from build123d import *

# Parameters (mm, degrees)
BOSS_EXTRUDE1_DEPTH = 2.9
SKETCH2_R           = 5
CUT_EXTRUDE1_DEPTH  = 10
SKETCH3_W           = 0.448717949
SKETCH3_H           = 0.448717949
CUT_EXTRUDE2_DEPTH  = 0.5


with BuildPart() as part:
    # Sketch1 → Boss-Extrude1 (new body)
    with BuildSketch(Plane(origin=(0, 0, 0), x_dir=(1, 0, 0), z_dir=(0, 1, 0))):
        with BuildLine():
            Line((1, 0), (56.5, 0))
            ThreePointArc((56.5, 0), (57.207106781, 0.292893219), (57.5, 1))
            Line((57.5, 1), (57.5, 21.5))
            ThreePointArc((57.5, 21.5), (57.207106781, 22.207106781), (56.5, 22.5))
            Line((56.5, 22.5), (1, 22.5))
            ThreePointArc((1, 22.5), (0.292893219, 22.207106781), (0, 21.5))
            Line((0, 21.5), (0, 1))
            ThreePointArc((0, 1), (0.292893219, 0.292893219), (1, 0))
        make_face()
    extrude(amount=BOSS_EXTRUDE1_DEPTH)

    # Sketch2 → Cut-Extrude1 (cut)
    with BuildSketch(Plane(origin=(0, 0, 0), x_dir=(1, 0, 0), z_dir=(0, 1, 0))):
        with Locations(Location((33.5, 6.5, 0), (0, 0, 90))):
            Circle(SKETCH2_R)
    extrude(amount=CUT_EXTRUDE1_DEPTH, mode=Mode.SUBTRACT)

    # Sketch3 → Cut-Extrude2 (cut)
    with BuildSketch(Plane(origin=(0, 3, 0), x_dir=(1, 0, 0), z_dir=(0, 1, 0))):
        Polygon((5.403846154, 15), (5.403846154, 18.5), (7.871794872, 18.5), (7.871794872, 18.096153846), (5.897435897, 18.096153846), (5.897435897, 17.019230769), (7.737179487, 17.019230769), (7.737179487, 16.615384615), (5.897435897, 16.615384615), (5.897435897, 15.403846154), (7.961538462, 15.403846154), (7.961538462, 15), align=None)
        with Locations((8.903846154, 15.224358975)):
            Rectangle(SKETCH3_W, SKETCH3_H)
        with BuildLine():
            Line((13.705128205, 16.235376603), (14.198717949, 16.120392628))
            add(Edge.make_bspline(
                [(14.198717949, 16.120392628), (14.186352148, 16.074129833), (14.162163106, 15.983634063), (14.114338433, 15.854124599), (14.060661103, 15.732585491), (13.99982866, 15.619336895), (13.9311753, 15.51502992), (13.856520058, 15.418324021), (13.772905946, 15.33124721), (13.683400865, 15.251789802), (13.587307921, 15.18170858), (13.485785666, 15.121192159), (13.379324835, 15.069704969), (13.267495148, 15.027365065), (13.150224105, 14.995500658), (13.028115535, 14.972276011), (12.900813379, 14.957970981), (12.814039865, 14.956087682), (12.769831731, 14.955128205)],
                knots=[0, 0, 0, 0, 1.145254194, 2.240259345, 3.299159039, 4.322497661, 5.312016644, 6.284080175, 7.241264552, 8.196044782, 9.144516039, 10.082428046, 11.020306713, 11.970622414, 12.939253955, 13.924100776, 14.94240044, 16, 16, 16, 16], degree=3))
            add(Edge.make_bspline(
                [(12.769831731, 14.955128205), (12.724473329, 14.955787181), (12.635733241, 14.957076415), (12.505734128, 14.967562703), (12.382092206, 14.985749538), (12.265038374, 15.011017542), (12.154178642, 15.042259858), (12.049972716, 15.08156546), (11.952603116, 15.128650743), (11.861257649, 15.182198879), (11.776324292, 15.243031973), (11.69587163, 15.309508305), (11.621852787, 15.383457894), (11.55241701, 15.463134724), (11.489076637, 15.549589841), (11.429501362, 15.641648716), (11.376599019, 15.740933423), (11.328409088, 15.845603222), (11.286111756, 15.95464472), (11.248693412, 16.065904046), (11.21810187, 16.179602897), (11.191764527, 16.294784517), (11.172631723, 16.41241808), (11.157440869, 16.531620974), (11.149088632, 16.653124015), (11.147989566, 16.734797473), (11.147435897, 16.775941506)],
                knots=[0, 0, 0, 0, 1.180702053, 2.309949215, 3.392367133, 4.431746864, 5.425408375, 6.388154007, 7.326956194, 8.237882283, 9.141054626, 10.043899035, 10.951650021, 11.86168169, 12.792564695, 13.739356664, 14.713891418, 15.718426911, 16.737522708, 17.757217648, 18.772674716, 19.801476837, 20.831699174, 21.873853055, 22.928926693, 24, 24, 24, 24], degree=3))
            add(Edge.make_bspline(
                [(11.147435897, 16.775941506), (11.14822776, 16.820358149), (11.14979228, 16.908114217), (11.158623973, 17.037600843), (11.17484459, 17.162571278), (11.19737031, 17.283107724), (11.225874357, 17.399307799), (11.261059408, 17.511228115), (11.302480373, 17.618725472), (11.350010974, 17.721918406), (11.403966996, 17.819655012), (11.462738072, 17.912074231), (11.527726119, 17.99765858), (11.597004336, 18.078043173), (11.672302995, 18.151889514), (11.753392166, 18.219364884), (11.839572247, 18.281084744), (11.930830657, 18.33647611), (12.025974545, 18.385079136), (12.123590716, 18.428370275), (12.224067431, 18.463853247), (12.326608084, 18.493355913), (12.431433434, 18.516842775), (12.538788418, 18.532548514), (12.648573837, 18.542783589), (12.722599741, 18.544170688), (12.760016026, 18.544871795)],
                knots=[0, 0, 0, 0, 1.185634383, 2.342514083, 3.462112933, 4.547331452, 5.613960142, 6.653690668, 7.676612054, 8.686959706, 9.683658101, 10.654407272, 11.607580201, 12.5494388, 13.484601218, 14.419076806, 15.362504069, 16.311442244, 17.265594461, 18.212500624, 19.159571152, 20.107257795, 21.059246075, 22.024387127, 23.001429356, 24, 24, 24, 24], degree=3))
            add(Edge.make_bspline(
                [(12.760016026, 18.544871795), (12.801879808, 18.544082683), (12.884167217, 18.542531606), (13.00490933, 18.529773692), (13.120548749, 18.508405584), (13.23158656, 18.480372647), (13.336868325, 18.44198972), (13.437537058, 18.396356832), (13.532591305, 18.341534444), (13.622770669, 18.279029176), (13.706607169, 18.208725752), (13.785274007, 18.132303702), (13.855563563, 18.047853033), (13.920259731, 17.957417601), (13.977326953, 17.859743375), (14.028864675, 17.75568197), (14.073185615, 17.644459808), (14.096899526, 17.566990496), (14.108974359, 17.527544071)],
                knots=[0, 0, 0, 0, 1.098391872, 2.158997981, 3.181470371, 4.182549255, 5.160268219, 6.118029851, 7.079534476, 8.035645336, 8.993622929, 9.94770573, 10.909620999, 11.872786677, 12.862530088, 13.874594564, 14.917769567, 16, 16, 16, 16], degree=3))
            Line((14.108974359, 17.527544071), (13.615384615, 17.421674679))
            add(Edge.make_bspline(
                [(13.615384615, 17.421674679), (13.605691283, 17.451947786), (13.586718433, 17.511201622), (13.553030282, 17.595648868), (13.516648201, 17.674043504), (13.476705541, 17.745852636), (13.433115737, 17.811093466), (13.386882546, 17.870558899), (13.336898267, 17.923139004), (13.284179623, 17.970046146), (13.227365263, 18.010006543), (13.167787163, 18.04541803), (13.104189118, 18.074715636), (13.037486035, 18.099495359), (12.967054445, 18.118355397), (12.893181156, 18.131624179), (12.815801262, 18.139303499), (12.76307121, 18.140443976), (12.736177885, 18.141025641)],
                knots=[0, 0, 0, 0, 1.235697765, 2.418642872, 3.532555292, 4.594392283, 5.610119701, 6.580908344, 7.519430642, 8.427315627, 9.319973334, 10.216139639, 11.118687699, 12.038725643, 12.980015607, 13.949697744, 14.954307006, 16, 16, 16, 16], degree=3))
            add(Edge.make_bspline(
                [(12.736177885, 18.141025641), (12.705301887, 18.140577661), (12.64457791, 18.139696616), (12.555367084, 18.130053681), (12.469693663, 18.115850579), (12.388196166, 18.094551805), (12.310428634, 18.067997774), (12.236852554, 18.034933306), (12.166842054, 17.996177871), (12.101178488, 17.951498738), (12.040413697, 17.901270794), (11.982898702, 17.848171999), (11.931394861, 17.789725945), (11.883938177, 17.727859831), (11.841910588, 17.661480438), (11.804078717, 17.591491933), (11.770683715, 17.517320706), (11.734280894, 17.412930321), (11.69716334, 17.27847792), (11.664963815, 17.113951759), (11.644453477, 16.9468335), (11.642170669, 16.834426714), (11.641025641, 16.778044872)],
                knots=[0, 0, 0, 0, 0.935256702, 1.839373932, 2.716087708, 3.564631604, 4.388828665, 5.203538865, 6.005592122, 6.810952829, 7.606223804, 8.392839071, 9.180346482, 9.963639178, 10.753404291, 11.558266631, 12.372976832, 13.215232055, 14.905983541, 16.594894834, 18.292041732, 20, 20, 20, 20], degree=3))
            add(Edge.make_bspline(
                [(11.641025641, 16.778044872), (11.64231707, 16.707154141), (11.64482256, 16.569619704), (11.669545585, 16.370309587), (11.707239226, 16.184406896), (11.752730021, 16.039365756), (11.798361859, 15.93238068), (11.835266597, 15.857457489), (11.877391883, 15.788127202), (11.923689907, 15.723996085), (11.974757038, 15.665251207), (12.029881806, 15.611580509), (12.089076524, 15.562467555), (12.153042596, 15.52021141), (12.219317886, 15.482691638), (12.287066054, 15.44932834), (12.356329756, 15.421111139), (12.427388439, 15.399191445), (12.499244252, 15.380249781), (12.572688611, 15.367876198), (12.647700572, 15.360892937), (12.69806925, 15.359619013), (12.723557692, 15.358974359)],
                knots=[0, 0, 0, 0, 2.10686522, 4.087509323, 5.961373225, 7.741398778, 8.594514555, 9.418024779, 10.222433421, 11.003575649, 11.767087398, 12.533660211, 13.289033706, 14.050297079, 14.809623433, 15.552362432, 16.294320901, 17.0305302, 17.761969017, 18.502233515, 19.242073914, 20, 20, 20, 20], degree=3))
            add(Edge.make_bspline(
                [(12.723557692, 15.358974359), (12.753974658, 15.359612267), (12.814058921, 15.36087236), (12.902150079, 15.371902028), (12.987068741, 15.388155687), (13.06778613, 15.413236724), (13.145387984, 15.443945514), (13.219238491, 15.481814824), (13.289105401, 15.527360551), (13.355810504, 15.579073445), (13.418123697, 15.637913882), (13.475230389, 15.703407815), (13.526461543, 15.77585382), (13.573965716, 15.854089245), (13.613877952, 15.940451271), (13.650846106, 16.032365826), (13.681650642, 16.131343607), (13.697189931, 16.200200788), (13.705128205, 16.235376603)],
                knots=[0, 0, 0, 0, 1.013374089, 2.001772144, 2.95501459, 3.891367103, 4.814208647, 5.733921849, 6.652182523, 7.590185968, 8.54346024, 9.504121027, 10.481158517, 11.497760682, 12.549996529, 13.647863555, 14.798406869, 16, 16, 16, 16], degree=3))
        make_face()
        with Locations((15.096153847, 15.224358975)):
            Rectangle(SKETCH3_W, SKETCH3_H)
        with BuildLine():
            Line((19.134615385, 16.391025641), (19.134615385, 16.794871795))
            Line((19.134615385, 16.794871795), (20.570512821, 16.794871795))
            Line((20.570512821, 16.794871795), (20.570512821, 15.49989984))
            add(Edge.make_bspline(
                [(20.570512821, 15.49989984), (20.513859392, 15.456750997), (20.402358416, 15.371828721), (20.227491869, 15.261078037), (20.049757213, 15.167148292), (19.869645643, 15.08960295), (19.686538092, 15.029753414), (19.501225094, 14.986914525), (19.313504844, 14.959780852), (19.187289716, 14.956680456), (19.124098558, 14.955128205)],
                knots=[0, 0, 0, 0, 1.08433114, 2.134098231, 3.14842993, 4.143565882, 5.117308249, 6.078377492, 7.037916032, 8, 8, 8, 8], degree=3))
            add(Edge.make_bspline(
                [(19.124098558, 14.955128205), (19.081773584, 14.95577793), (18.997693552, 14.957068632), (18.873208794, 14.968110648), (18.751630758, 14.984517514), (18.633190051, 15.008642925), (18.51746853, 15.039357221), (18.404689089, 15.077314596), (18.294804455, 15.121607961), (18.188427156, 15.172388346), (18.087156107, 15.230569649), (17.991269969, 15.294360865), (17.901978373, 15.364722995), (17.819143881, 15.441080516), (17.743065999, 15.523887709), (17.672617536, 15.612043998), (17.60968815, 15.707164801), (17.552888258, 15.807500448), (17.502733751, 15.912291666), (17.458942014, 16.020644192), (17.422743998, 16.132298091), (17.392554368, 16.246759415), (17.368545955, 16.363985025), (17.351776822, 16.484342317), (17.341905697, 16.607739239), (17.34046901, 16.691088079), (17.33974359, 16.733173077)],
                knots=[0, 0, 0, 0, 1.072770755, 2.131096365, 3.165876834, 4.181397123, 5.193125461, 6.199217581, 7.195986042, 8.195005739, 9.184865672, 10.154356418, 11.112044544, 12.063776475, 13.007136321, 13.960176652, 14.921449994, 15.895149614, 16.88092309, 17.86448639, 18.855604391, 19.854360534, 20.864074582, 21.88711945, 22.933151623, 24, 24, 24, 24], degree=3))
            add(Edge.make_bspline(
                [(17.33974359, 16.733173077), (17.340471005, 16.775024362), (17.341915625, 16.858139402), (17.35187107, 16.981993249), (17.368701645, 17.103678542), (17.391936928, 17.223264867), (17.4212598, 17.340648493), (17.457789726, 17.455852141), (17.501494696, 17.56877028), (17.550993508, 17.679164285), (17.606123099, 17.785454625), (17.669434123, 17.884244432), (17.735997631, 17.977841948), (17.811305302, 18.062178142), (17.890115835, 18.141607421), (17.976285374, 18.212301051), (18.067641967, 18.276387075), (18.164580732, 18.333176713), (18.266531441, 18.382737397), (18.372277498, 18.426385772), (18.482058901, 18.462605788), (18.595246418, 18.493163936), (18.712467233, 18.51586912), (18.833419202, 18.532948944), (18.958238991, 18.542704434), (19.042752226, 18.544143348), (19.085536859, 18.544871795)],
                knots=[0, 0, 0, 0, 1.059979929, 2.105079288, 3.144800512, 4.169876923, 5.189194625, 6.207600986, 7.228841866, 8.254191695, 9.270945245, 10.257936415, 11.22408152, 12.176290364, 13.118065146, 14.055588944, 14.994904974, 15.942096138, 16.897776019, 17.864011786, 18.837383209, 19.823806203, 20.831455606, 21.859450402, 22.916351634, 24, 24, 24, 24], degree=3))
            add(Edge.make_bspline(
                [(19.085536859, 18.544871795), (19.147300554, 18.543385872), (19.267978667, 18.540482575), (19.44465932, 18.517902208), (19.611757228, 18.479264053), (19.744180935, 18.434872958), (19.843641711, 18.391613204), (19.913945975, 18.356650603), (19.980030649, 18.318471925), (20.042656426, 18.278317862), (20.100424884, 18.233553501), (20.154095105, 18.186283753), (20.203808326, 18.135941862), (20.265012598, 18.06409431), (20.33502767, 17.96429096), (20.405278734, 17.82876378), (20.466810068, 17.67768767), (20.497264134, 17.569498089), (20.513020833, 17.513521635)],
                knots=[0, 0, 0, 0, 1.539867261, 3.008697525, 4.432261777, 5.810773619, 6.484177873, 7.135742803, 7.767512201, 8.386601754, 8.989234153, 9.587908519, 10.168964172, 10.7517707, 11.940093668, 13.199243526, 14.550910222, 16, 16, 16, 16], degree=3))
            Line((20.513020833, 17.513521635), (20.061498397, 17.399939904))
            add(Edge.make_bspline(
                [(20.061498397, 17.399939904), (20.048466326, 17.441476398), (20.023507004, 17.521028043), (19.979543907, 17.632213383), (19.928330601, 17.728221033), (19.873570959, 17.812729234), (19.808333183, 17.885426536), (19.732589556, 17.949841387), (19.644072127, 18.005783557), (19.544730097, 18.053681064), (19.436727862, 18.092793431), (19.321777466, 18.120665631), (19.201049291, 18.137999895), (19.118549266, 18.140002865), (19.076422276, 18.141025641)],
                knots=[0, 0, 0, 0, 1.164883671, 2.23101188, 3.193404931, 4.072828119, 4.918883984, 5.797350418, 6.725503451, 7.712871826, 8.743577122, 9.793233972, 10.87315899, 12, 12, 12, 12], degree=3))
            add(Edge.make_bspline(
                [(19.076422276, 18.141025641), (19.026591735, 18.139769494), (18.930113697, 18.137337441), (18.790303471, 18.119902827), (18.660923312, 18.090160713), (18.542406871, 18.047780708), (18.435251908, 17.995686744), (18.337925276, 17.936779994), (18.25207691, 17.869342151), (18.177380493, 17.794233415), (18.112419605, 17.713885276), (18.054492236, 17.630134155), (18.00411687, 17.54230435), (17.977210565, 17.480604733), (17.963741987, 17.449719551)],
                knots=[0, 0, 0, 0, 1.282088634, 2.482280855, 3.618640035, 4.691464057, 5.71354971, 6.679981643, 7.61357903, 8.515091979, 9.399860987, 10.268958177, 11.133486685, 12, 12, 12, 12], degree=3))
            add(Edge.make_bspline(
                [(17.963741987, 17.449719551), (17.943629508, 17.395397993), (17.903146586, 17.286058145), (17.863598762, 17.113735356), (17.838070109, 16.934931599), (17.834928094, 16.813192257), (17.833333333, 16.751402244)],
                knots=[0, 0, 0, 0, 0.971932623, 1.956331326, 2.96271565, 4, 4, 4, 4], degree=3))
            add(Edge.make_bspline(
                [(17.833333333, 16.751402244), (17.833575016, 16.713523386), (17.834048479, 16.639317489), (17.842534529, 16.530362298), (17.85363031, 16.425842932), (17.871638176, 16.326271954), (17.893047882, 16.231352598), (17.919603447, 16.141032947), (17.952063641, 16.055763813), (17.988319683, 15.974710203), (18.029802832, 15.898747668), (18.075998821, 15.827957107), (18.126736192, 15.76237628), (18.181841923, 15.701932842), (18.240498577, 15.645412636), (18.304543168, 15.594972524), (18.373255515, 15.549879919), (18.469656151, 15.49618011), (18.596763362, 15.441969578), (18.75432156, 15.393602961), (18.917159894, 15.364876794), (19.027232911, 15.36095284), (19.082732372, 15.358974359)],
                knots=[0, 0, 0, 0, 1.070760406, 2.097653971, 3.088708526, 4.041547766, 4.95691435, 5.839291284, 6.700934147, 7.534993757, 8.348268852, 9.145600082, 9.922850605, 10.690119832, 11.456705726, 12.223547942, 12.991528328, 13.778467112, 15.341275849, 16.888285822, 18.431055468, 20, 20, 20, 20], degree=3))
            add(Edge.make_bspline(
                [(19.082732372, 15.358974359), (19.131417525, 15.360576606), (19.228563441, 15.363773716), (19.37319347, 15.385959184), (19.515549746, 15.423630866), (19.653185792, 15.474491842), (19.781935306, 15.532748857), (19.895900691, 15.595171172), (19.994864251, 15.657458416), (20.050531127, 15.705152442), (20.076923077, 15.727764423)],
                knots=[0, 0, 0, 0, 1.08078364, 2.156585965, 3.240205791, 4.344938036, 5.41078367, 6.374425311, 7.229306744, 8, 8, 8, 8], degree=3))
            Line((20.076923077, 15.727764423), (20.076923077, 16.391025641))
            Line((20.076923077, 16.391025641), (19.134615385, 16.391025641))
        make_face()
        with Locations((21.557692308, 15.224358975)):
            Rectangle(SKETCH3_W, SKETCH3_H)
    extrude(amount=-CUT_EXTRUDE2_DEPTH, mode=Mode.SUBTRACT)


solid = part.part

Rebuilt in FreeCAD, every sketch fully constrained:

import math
import FreeCAD as App
import Part
import Sketcher


def add_polygon(sketch, points):
    """Adds a closed chain of lines whose ends are joined by coincident constraints."""
    first, n = sketch.GeometryCount, len(points)
    for a, b in zip(points, points[1:] + points[:1]):
        sketch.addGeometry(Part.LineSegment(App.Vector(*a, 0), App.Vector(*b, 0)), False)
    for i in range(n):
        sketch.addConstraint(Sketcher.Constraint("Coincident", first + i, 2, first + (i + 1) % n, 1))

doc = App.newDocument("Part")
body = doc.addObject("PartDesign::Body", "Body")

# Sketch on XZ plane
sketch1 = doc.addObject("Sketcher::SketchObject", "Sketch")
body.addObject(sketch1)
sketch1.AttachmentSupport = (doc.XZ_Plane, [""])
sketch1.MapMode = "FlatFace"
sketch1.addGeometry([
    Part.LineSegment(App.Vector(1, 0, 0), App.Vector(56.5, 0, 0)),  # 0
    Part.ArcOfCircle(Part.Circle(App.Vector(56.5, -1, 0), App.Vector(0, 0, 1), 1), math.radians(0), math.radians(90)),  # 1
    Part.LineSegment(App.Vector(57.5, -1, 0), App.Vector(57.5, -21.5, 0)),  # 2
    Part.ArcOfCircle(Part.Circle(App.Vector(56.5, -21.5, 0), App.Vector(0, 0, 1), 1), math.radians(-90), math.radians(0)),  # 3
    Part.LineSegment(App.Vector(56.5, -22.5, 0), App.Vector(1, -22.5, 0)),  # 4
    Part.ArcOfCircle(Part.Circle(App.Vector(1, -21.5, 0), App.Vector(0, 0, 1), 1), math.radians(-180), math.radians(-90)),  # 5
    Part.LineSegment(App.Vector(0, -21.5, 0), App.Vector(0, -1, 0)),  # 6
    Part.ArcOfCircle(Part.Circle(App.Vector(1, -1, 0), App.Vector(0, 0, 1), 1), math.radians(90), math.radians(180)),  # 7
], False)
sketch1.addConstraint([
    Sketcher.Constraint("Tangent", 0, 2, 1, 2),
    Sketcher.Constraint("Tangent", 1, 1, 2, 1),
    Sketcher.Constraint("Tangent", 2, 2, 3, 2),
    Sketcher.Constraint("Tangent", 3, 1, 4, 1),
    Sketcher.Constraint("Tangent", 4, 2, 5, 2),
    Sketcher.Constraint("Tangent", 5, 1, 6, 1),
    Sketcher.Constraint("Tangent", 6, 2, 7, 2),
    Sketcher.Constraint("Tangent", 7, 1, 0, 1),
    Sketcher.Constraint("Horizontal", 0),
    Sketcher.Constraint("Vertical", 2),
    Sketcher.Constraint("Horizontal", 4),
    Sketcher.Constraint("Vertical", 6),
    Sketcher.Constraint("Equal", 1, 3),
    Sketcher.Constraint("Equal", 3, 5),
    Sketcher.Constraint("Equal", 5, 7),
    Sketcher.Constraint("PointOnObject", 0, 2, -1),
    Sketcher.Constraint("PointOnObject", 5, 1, -2),
    Sketcher.Constraint("Radius", 1, 1.0),
    Sketcher.Constraint("DistanceX", 0, 1, 0, 2, 55.5),
    Sketcher.Constraint("DistanceY", 2, 2, 2, 1, 20.5),
])
pad1 = doc.addObject("PartDesign::Pad", "Pad")
body.addObject(pad1)
pad1.Profile = sketch1
pad1.Length = 2.9
pad1.Reversed = True

# Sketch on XZ plane
sketch2 = doc.addObject("Sketcher::SketchObject", "Sketch001")
body.addObject(sketch2)
sketch2.AttachmentSupport = (doc.XZ_Plane, [""])
sketch2.MapMode = "FlatFace"
sketch2.addGeometry(Part.Circle(App.Vector(33.5, -6.5, 0), App.Vector(0, 0, 1), 5), False)
sketch2.addConstraint([
    Sketcher.Constraint("Diameter", 0, 10.0),
    Sketcher.Constraint("DistanceX", -1, 1, 0, 3, 33.5),
    Sketcher.Constraint("DistanceY", 0, 3, -1, 1, 6.5),
])
pocket1 = doc.addObject("PartDesign::Pocket", "Pocket")
body.addObject(pocket1)
pocket1.Profile = sketch2
pocket1.Length = 10

# Sketch on XZ plane
sketch3 = doc.addObject("Sketcher::SketchObject", "Sketch002")
body.addObject(sketch3)
sketch3.AttachmentSupport = (doc.XZ_Plane, [""])
sketch3.MapMode = "FlatFace"
sketch3.AttachmentOffset = App.Placement(App.Vector(0, 0, -3), App.Rotation())
add_polygon(sketch3, [(5.403846, -18.5), (5.403846, -15), (7.961538, -15), (7.961538, -15.403846), (5.897436, -15.403846), (5.897436, -16.615385), (7.737179, -16.615385), (7.737179, -17.019231), (5.897436, -17.019231), (5.897436, -18.096154), (7.871795, -18.096154), (7.871795, -18.5)])  # lines 0-11
add_polygon(sketch3, [(8.679487, -15.448718), (8.679487, -15), (9.128205, -15), (9.128205, -15.448718)])  # lines 12-15
sketch3.addGeometry(Part.LineSegment(App.Vector(14.198718, -16.120393, 0), App.Vector(13.705128, -16.235377, 0)), False)  # 16
sketch3.addGeometry(Part.BSplineCurve([App.Vector(12.723558, -15.358974, 0), App.Vector(12.753975, -15.359612, 0), App.Vector(12.814059, -15.360872, 0), App.Vector(12.90215, -15.371902, 0), App.Vector(12.987069, -15.388156, 0), App.Vector(13.067786, -15.413237, 0), App.Vector(13.145388, -15.443946, 0), App.Vector(13.219238, -15.481815, 0), App.Vector(13.289105, -15.527361, 0), App.Vector(13.355811, -15.579073, 0), App.Vector(13.418124, -15.637914, 0), App.Vector(13.47523, -15.703408, 0), App.Vector(13.526462, -15.775854, 0), App.Vector(13.573966, -15.854089, 0), App.Vector(13.613878, -15.940451, 0), App.Vector(13.650846, -16.032366, 0), App.Vector(13.681651, -16.131344, 0), App.Vector(13.69719, -16.200201, 0), App.Vector(13.705128, -16.235377, 0)], [4, 1, 1, 1, 1, 1, 1, 1, 1, 1, 1, 1, 1, 1, 1, 1, 4], [0, 1.013374089, 2.001772144, 2.95501459, 3.891367103, 4.814208647, 5.733921849, 6.652182523, 7.590185968, 8.54346024, 9.504121027, 10.481158517, 11.497760682, 12.549996529, 13.647863555, 14.798406869, 16], False, 3, [1, 1, 1, 1, 1, 1, 1, 1, 1, 1, 1, 1, 1, 1, 1, 1, 1, 1, 1], False), False)  # 17
sketch3.addGeometry(Part.BSplineCurve([App.Vector(11.641026, -16.778045, 0), App.Vector(11.642317, -16.707154, 0), App.Vector(11.644823, -16.56962, 0), App.Vector(11.669546, -16.37031, 0), App.Vector(11.707239, -16.184407, 0), App.Vector(11.75273, -16.039366, 0), App.Vector(11.798362, -15.932381, 0), App.Vector(11.835267, -15.857457, 0), App.Vector(11.877392, -15.788127, 0), App.Vector(11.92369, -15.723996, 0), App.Vector(11.974757, -15.665251, 0), App.Vector(12.029882, -15.611581, 0), App.Vector(12.089077, -15.562468, 0), App.Vector(12.153043, -15.520211, 0), App.Vector(12.219318, -15.482692, 0), App.Vector(12.287066, -15.449328, 0), App.Vector(12.35633, -15.421111, 0), App.Vector(12.427388, -15.399191, 0), App.Vector(12.499244, -15.38025, 0), App.Vector(12.572689, -15.367876, 0), App.Vector(12.647701, -15.360893, 0), App.Vector(12.698069, -15.359619, 0), App.Vector(12.723558, -15.358974, 0)], [4, 1, 1, 1, 1, 1, 1, 1, 1, 1, 1, 1, 1, 1, 1, 1, 1, 1, 1, 1, 4], [0, 2.10686522, 4.087509323, 5.961373225, 7.741398778, 8.594514555, 9.418024779, 10.222433421, 11.003575649, 11.767087398, 12.533660211, 13.289033706, 14.050297079, 14.809623433, 15.552362432, 16.294320901, 17.0305302, 17.761969017, 18.502233515, 19.242073914, 20], False, 3, [1, 1, 1, 1, 1, 1, 1, 1, 1, 1, 1, 1, 1, 1, 1, 1, 1, 1, 1, 1, 1, 1, 1], False), False)  # 18
sketch3.addGeometry(Part.BSplineCurve([App.Vector(12.736178, -18.141026, 0), App.Vector(12.705302, -18.140578, 0), App.Vector(12.644578, -18.139697, 0), App.Vector(12.555367, -18.130054, 0), App.Vector(12.469694, -18.115851, 0), App.Vector(12.388196, -18.094552, 0), App.Vector(12.310429, -18.067998, 0), App.Vector(12.236853, -18.034933, 0), App.Vector(12.166842, -17.996178, 0), App.Vector(12.101178, -17.951499, 0), App.Vector(12.040414, -17.901271, 0), App.Vector(11.982899, -17.848172, 0), App.Vector(11.931395, -17.789726, 0), App.Vector(11.883938, -17.72786, 0), App.Vector(11.841911, -17.66148, 0), App.Vector(11.804079, -17.591492, 0), App.Vector(11.770684, -17.517321, 0), App.Vector(11.734281, -17.41293, 0), App.Vector(11.697163, -17.278478, 0), App.Vector(11.664964, -17.113952, 0), App.Vector(11.644453, -16.946834, 0), App.Vector(11.642171, -16.834427, 0), App.Vector(11.641026, -16.778045, 0)], [4, 1, 1, 1, 1, 1, 1, 1, 1, 1, 1, 1, 1, 1, 1, 1, 1, 1, 1, 1, 4], [0, 0.935256702, 1.839373932, 2.716087708, 3.564631604, 4.388828665, 5.203538865, 6.005592122, 6.810952829, 7.606223804, 8.392839071, 9.180346482, 9.963639178, 10.753404291, 11.558266631, 12.372976832, 13.215232055, 14.905983541, 16.594894834, 18.292041732, 20], False, 3, [1, 1, 1, 1, 1, 1, 1, 1, 1, 1, 1, 1, 1, 1, 1, 1, 1, 1, 1, 1, 1, 1, 1], False), False)  # 19
sketch3.addGeometry(Part.BSplineCurve([App.Vector(13.615385, -17.421675, 0), App.Vector(13.605691, -17.451948, 0), App.Vector(13.586718, -17.511202, 0), App.Vector(13.55303, -17.595649, 0), App.Vector(13.516648, -17.674044, 0), App.Vector(13.476706, -17.745853, 0), App.Vector(13.433116, -17.811093, 0), App.Vector(13.386883, -17.870559, 0), App.Vector(13.336898, -17.923139, 0), App.Vector(13.28418, -17.970046, 0), App.Vector(13.227365, -18.010007, 0), App.Vector(13.167787, -18.045418, 0), App.Vector(13.104189, -18.074716, 0), App.Vector(13.037486, -18.099495, 0), App.Vector(12.967054, -18.118355, 0), App.Vector(12.893181, -18.131624, 0), App.Vector(12.815801, -18.139303, 0), App.Vector(12.763071, -18.140444, 0), App.Vector(12.736178, -18.141026, 0)], [4, 1, 1, 1, 1, 1, 1, 1, 1, 1, 1, 1, 1, 1, 1, 1, 4], [0, 1.235697765, 2.418642872, 3.532555292, 4.594392283, 5.610119701, 6.580908344, 7.519430642, 8.427315627, 9.319973334, 10.216139639, 11.118687699, 12.038725643, 12.980015607, 13.949697744, 14.954307006, 16], False, 3, [1, 1, 1, 1, 1, 1, 1, 1, 1, 1, 1, 1, 1, 1, 1, 1, 1, 1, 1], False), False)  # 20
sketch3.addGeometry(Part.LineSegment(App.Vector(13.615385, -17.421675, 0), App.Vector(14.108974, -17.527544, 0)), False)  # 21
sketch3.addGeometry(Part.BSplineCurve([App.Vector(12.760016, -18.544872, 0), App.Vector(12.80188, -18.544083, 0), App.Vector(12.884167, -18.542532, 0), App.Vector(13.004909, -18.529774, 0), App.Vector(13.120549, -18.508406, 0), App.Vector(13.231587, -18.480373, 0), App.Vector(13.336868, -18.44199, 0), App.Vector(13.437537, -18.396357, 0), App.Vector(13.532591, -18.341534, 0), App.Vector(13.622771, -18.279029, 0), App.Vector(13.706607, -18.208726, 0), App.Vector(13.785274, -18.132304, 0), App.Vector(13.855564, -18.047853, 0), App.Vector(13.92026, -17.957418, 0), App.Vector(13.977327, -17.859743, 0), App.Vector(14.028865, -17.755682, 0), App.Vector(14.073186, -17.64446, 0), App.Vector(14.0969, -17.56699, 0), App.Vector(14.108974, -17.527544, 0)], [4, 1, 1, 1, 1, 1, 1, 1, 1, 1, 1, 1, 1, 1, 1, 1, 4], [0, 1.098391872, 2.158997981, 3.181470371, 4.182549255, 5.160268219, 6.118029851, 7.079534476, 8.035645336, 8.993622929, 9.94770573, 10.909620999, 11.872786677, 12.862530088, 13.874594564, 14.917769567, 16], False, 3, [1, 1, 1, 1, 1, 1, 1, 1, 1, 1, 1, 1, 1, 1, 1, 1, 1, 1, 1], False), False)  # 22
sketch3.addGeometry(Part.BSplineCurve([App.Vector(11.147436, -16.775942, 0), App.Vector(11.148228, -16.820358, 0), App.Vector(11.149792, -16.908114, 0), App.Vector(11.158624, -17.037601, 0), App.Vector(11.174845, -17.162571, 0), App.Vector(11.19737, -17.283108, 0), App.Vector(11.225874, -17.399308, 0), App.Vector(11.261059, -17.511228, 0), App.Vector(11.30248, -17.618725, 0), App.Vector(11.350011, -17.721918, 0), App.Vector(11.403967, -17.819655, 0), App.Vector(11.462738, -17.912074, 0), App.Vector(11.527726, -17.997659, 0), App.Vector(11.597004, -18.078043, 0), App.Vector(11.672303, -18.15189, 0), App.Vector(11.753392, -18.219365, 0), App.Vector(11.839572, -18.281085, 0), App.Vector(11.930831, -18.336476, 0), App.Vector(12.025975, -18.385079, 0), App.Vector(12.123591, -18.42837, 0), App.Vector(12.224067, -18.463853, 0), App.Vector(12.326608, -18.493356, 0), App.Vector(12.431433, -18.516843, 0), App.Vector(12.538788, -18.532549, 0), App.Vector(12.648574, -18.542784, 0), App.Vector(12.7226, -18.544171, 0), App.Vector(12.760016, -18.544872, 0)], [4, 1, 1, 1, 1, 1, 1, 1, 1, 1, 1, 1, 1, 1, 1, 1, 1, 1, 1, 1, 1, 1, 1, 1, 4], [0, 1.185634383, 2.342514083, 3.462112933, 4.547331452, 5.613960142, 6.653690668, 7.676612054, 8.686959706, 9.683658101, 10.654407272, 11.607580201, 12.5494388, 13.484601218, 14.419076806, 15.362504069, 16.311442244, 17.265594461, 18.212500624, 19.159571152, 20.107257795, 21.059246075, 22.024387127, 23.001429356, 24], False, 3, [1, 1, 1, 1, 1, 1, 1, 1, 1, 1, 1, 1, 1, 1, 1, 1, 1, 1, 1, 1, 1, 1, 1, 1, 1, 1, 1], False), False)  # 23
sketch3.addGeometry(Part.BSplineCurve([App.Vector(12.769832, -14.955128, 0), App.Vector(12.724473, -14.955787, 0), App.Vector(12.635733, -14.957076, 0), App.Vector(12.505734, -14.967563, 0), App.Vector(12.382092, -14.98575, 0), App.Vector(12.265038, -15.011018, 0), App.Vector(12.154179, -15.04226, 0), App.Vector(12.049973, -15.081565, 0), App.Vector(11.952603, -15.128651, 0), App.Vector(11.861258, -15.182199, 0), App.Vector(11.776324, -15.243032, 0), App.Vector(11.695872, -15.309508, 0), App.Vector(11.621853, -15.383458, 0), App.Vector(11.552417, -15.463135, 0), App.Vector(11.489077, -15.54959, 0), App.Vector(11.429501, -15.641649, 0), App.Vector(11.376599, -15.740933, 0), App.Vector(11.328409, -15.845603, 0), App.Vector(11.286112, -15.954645, 0), App.Vector(11.248693, -16.065904, 0), App.Vector(11.218102, -16.179603, 0), App.Vector(11.191765, -16.294785, 0), App.Vector(11.172632, -16.412418, 0), App.Vector(11.157441, -16.531621, 0), App.Vector(11.149089, -16.653124, 0), App.Vector(11.14799, -16.734797, 0), App.Vector(11.147436, -16.775942, 0)], [4, 1, 1, 1, 1, 1, 1, 1, 1, 1, 1, 1, 1, 1, 1, 1, 1, 1, 1, 1, 1, 1, 1, 1, 4], [0, 1.180702053, 2.309949215, 3.392367133, 4.431746864, 5.425408375, 6.388154007, 7.326956194, 8.237882283, 9.141054626, 10.043899035, 10.951650021, 11.86168169, 12.792564695, 13.739356664, 14.713891418, 15.718426911, 16.737522708, 17.757217648, 18.772674716, 19.801476837, 20.831699174, 21.873853055, 22.928926693, 24], False, 3, [1, 1, 1, 1, 1, 1, 1, 1, 1, 1, 1, 1, 1, 1, 1, 1, 1, 1, 1, 1, 1, 1, 1, 1, 1, 1, 1], False), False)  # 24
sketch3.addGeometry(Part.BSplineCurve([App.Vector(14.198718, -16.120393, 0), App.Vector(14.186352, -16.07413, 0), App.Vector(14.162163, -15.983634, 0), App.Vector(14.114338, -15.854125, 0), App.Vector(14.060661, -15.732585, 0), App.Vector(13.999829, -15.619337, 0), App.Vector(13.931175, -15.51503, 0), App.Vector(13.85652, -15.418324, 0), App.Vector(13.772906, -15.331247, 0), App.Vector(13.683401, -15.25179, 0), App.Vector(13.587308, -15.181709, 0), App.Vector(13.485786, -15.121192, 0), App.Vector(13.379325, -15.069705, 0), App.Vector(13.267495, -15.027365, 0), App.Vector(13.150224, -14.995501, 0), App.Vector(13.028116, -14.972276, 0), App.Vector(12.900813, -14.957971, 0), App.Vector(12.81404, -14.956088, 0), App.Vector(12.769832, -14.955128, 0)], [4, 1, 1, 1, 1, 1, 1, 1, 1, 1, 1, 1, 1, 1, 1, 1, 4], [0, 1.145254194, 2.240259345, 3.299159039, 4.322497661, 5.312016644, 6.284080175, 7.241264552, 8.196044782, 9.144516039, 10.082428046, 11.020306713, 11.970622414, 12.939253955, 13.924100776, 14.94240044, 16], False, 3, [1, 1, 1, 1, 1, 1, 1, 1, 1, 1, 1, 1, 1, 1, 1, 1, 1, 1, 1], False), False)  # 25
add_polygon(sketch3, [(14.871795, -15.448718), (14.871795, -15), (15.320513, -15), (15.320513, -15.448718)])  # lines 26-29
sketch3.addGeometry(Part.LineSegment(App.Vector(19.134615, -16.794872, 0), App.Vector(19.134615, -16.391026, 0)), False)  # 30
sketch3.addGeometry(Part.LineSegment(App.Vector(19.134615, -16.391026, 0), App.Vector(20.076923, -16.391026, 0)), False)  # 31
sketch3.addGeometry(Part.LineSegment(App.Vector(20.076923, -16.391026, 0), App.Vector(20.076923, -15.727764, 0)), False)  # 32
sketch3.addGeometry(Part.BSplineCurve([App.Vector(19.082732, -15.358974, 0), App.Vector(19.131418, -15.360577, 0), App.Vector(19.228563, -15.363774, 0), App.Vector(19.373193, -15.385959, 0), App.Vector(19.51555, -15.423631, 0), App.Vector(19.653186, -15.474492, 0), App.Vector(19.781935, -15.532749, 0), App.Vector(19.895901, -15.595171, 0), App.Vector(19.994864, -15.657458, 0), App.Vector(20.050531, -15.705152, 0), App.Vector(20.076923, -15.727764, 0)], [4, 1, 1, 1, 1, 1, 1, 1, 4], [0, 1.08078364, 2.156585965, 3.240205791, 4.344938036, 5.41078367, 6.374425311, 7.229306744, 8], False, 3, [1, 1, 1, 1, 1, 1, 1, 1, 1, 1, 1], False), False)  # 33
sketch3.addGeometry(Part.BSplineCurve([App.Vector(17.833333, -16.751402, 0), App.Vector(17.833575, -16.713523, 0), App.Vector(17.834048, -16.639317, 0), App.Vector(17.842535, -16.530362, 0), App.Vector(17.85363, -16.425843, 0), App.Vector(17.871638, -16.326272, 0), App.Vector(17.893048, -16.231353, 0), App.Vector(17.919603, -16.141033, 0), App.Vector(17.952064, -16.055764, 0), App.Vector(17.98832, -15.97471, 0), App.Vector(18.029803, -15.898748, 0), App.Vector(18.075999, -15.827957, 0), App.Vector(18.126736, -15.762376, 0), App.Vector(18.181842, -15.701933, 0), App.Vector(18.240499, -15.645413, 0), App.Vector(18.304543, -15.594973, 0), App.Vector(18.373256, -15.54988, 0), App.Vector(18.469656, -15.49618, 0), App.Vector(18.596763, -15.44197, 0), App.Vector(18.754322, -15.393603, 0), App.Vector(18.91716, -15.364877, 0), App.Vector(19.027233, -15.360953, 0), App.Vector(19.082732, -15.358974, 0)], [4, 1, 1, 1, 1, 1, 1, 1, 1, 1, 1, 1, 1, 1, 1, 1, 1, 1, 1, 1, 4], [0, 1.070760406, 2.097653971, 3.088708526, 4.041547766, 4.95691435, 5.839291284, 6.700934147, 7.534993757, 8.348268852, 9.145600082, 9.922850605, 10.690119832, 11.456705726, 12.223547942, 12.991528328, 13.778467112, 15.341275849, 16.888285822, 18.431055468, 20], False, 3, [1, 1, 1, 1, 1, 1, 1, 1, 1, 1, 1, 1, 1, 1, 1, 1, 1, 1, 1, 1, 1, 1, 1], False), False)  # 34
sketch3.addGeometry(Part.BSplineCurve([App.Vector(17.963742, -17.44972, 0), App.Vector(17.94363, -17.395398, 0), App.Vector(17.903147, -17.286058, 0), App.Vector(17.863599, -17.113735, 0), App.Vector(17.83807, -16.934932, 0), App.Vector(17.834928, -16.813192, 0), App.Vector(17.833333, -16.751402, 0)], [4, 1, 1, 1, 4], [0, 0.971932623, 1.956331326, 2.96271565, 4], False, 3, [1, 1, 1, 1, 1, 1, 1], False), False)  # 35
sketch3.addGeometry(Part.BSplineCurve([App.Vector(19.076422, -18.141026, 0), App.Vector(19.026592, -18.139769, 0), App.Vector(18.930114, -18.137337, 0), App.Vector(18.790303, -18.119903, 0), App.Vector(18.660923, -18.090161, 0), App.Vector(18.542407, -18.047781, 0), App.Vector(18.435252, -17.995687, 0), App.Vector(18.337925, -17.93678, 0), App.Vector(18.252077, -17.869342, 0), App.Vector(18.17738, -17.794233, 0), App.Vector(18.11242, -17.713885, 0), App.Vector(18.054492, -17.630134, 0), App.Vector(18.004117, -17.542304, 0), App.Vector(17.977211, -17.480605, 0), App.Vector(17.963742, -17.44972, 0)], [4, 1, 1, 1, 1, 1, 1, 1, 1, 1, 1, 1, 4], [0, 1.282088634, 2.482280855, 3.618640035, 4.691464057, 5.71354971, 6.679981643, 7.61357903, 8.515091979, 9.399860987, 10.268958177, 11.133486685, 12], False, 3, [1, 1, 1, 1, 1, 1, 1, 1, 1, 1, 1, 1, 1, 1, 1], False), False)  # 36
sketch3.addGeometry(Part.BSplineCurve([App.Vector(20.061498, -17.39994, 0), App.Vector(20.048466, -17.441476, 0), App.Vector(20.023507, -17.521028, 0), App.Vector(19.979544, -17.632213, 0), App.Vector(19.928331, -17.728221, 0), App.Vector(19.873571, -17.812729, 0), App.Vector(19.808333, -17.885427, 0), App.Vector(19.73259, -17.949841, 0), App.Vector(19.644072, -18.005784, 0), App.Vector(19.54473, -18.053681, 0), App.Vector(19.436728, -18.092793, 0), App.Vector(19.321777, -18.120666, 0), App.Vector(19.201049, -18.138, 0), App.Vector(19.118549, -18.140003, 0), App.Vector(19.076422, -18.141026, 0)], [4, 1, 1, 1, 1, 1, 1, 1, 1, 1, 1, 1, 4], [0, 1.164883671, 2.23101188, 3.193404931, 4.072828119, 4.918883984, 5.797350418, 6.725503451, 7.712871826, 8.743577122, 9.793233972, 10.87315899, 12], False, 3, [1, 1, 1, 1, 1, 1, 1, 1, 1, 1, 1, 1, 1, 1, 1], False), False)  # 37
sketch3.addGeometry(Part.LineSegment(App.Vector(20.061498, -17.39994, 0), App.Vector(20.513021, -17.513522, 0)), False)  # 38
sketch3.addGeometry(Part.BSplineCurve([App.Vector(19.085537, -18.544872, 0), App.Vector(19.147301, -18.543386, 0), App.Vector(19.267979, -18.540483, 0), App.Vector(19.444659, -18.517902, 0), App.Vector(19.611757, -18.479264, 0), App.Vector(19.744181, -18.434873, 0), App.Vector(19.843642, -18.391613, 0), App.Vector(19.913946, -18.356651, 0), App.Vector(19.980031, -18.318472, 0), App.Vector(20.042656, -18.278318, 0), App.Vector(20.100425, -18.233554, 0), App.Vector(20.154095, -18.186284, 0), App.Vector(20.203808, -18.135942, 0), App.Vector(20.265013, -18.064094, 0), App.Vector(20.335028, -17.964291, 0), App.Vector(20.405279, -17.828764, 0), App.Vector(20.46681, -17.677688, 0), App.Vector(20.497264, -17.569498, 0), App.Vector(20.513021, -17.513522, 0)], [4, 1, 1, 1, 1, 1, 1, 1, 1, 1, 1, 1, 1, 1, 1, 1, 4], [0, 1.539867261, 3.008697525, 4.432261777, 5.810773619, 6.484177873, 7.135742803, 7.767512201, 8.386601754, 8.989234153, 9.587908519, 10.168964172, 10.7517707, 11.940093668, 13.199243526, 14.550910222, 16], False, 3, [1, 1, 1, 1, 1, 1, 1, 1, 1, 1, 1, 1, 1, 1, 1, 1, 1, 1, 1], False), False)  # 39
sketch3.addGeometry(Part.BSplineCurve([App.Vector(17.339744, -16.733173, 0), App.Vector(17.340471, -16.775024, 0), App.Vector(17.341916, -16.858139, 0), App.Vector(17.351871, -16.981993, 0), App.Vector(17.368702, -17.103679, 0), App.Vector(17.391937, -17.223265, 0), App.Vector(17.42126, -17.340648, 0), App.Vector(17.45779, -17.455852, 0), App.Vector(17.501495, -17.56877, 0), App.Vector(17.550994, -17.679164, 0), App.Vector(17.606123, -17.785455, 0), App.Vector(17.669434, -17.884244, 0), App.Vector(17.735998, -17.977842, 0), App.Vector(17.811305, -18.062178, 0), App.Vector(17.890116, -18.141607, 0), App.Vector(17.976285, -18.212301, 0), App.Vector(18.067642, -18.276387, 0), App.Vector(18.164581, -18.333177, 0), App.Vector(18.266531, -18.382737, 0), App.Vector(18.372277, -18.426386, 0), App.Vector(18.482059, -18.462606, 0), App.Vector(18.595246, -18.493164, 0), App.Vector(18.712467, -18.515869, 0), App.Vector(18.833419, -18.532949, 0), App.Vector(18.958239, -18.542704, 0), App.Vector(19.042752, -18.544143, 0), App.Vector(19.085537, -18.544872, 0)], [4, 1, 1, 1, 1, 1, 1, 1, 1, 1, 1, 1, 1, 1, 1, 1, 1, 1, 1, 1, 1, 1, 1, 1, 4], [0, 1.059979929, 2.105079288, 3.144800512, 4.169876923, 5.189194625, 6.207600986, 7.228841866, 8.254191695, 9.270945245, 10.257936415, 11.22408152, 12.176290364, 13.118065146, 14.055588944, 14.994904974, 15.942096138, 16.897776019, 17.864011786, 18.837383209, 19.823806203, 20.831455606, 21.859450402, 22.916351634, 24], False, 3, [1, 1, 1, 1, 1, 1, 1, 1, 1, 1, 1, 1, 1, 1, 1, 1, 1, 1, 1, 1, 1, 1, 1, 1, 1, 1, 1], False), False)  # 40
sketch3.addGeometry(Part.BSplineCurve([App.Vector(19.124099, -14.955128, 0), App.Vector(19.081774, -14.955778, 0), App.Vector(18.997694, -14.957069, 0), App.Vector(18.873209, -14.968111, 0), App.Vector(18.751631, -14.984518, 0), App.Vector(18.63319, -15.008643, 0), App.Vector(18.517469, -15.039357, 0), App.Vector(18.404689, -15.077315, 0), App.Vector(18.294804, -15.121608, 0), App.Vector(18.188427, -15.172388, 0), App.Vector(18.087156, -15.23057, 0), App.Vector(17.99127, -15.294361, 0), App.Vector(17.901978, -15.364723, 0), App.Vector(17.819144, -15.441081, 0), App.Vector(17.743066, -15.523888, 0), App.Vector(17.672618, -15.612044, 0), App.Vector(17.609688, -15.707165, 0), App.Vector(17.552888, -15.8075, 0), App.Vector(17.502734, -15.912292, 0), App.Vector(17.458942, -16.020644, 0), App.Vector(17.422744, -16.132298, 0), App.Vector(17.392554, -16.246759, 0), App.Vector(17.368546, -16.363985, 0), App.Vector(17.351777, -16.484342, 0), App.Vector(17.341906, -16.607739, 0), App.Vector(17.340469, -16.691088, 0), App.Vector(17.339744, -16.733173, 0)], [4, 1, 1, 1, 1, 1, 1, 1, 1, 1, 1, 1, 1, 1, 1, 1, 1, 1, 1, 1, 1, 1, 1, 1, 4], [0, 1.072770755, 2.131096365, 3.165876834, 4.181397123, 5.193125461, 6.199217581, 7.195986042, 8.195005739, 9.184865672, 10.154356418, 11.112044544, 12.063776475, 13.007136321, 13.960176652, 14.921449994, 15.895149614, 16.88092309, 17.86448639, 18.855604391, 19.854360534, 20.864074582, 21.88711945, 22.933151623, 24], False, 3, [1, 1, 1, 1, 1, 1, 1, 1, 1, 1, 1, 1, 1, 1, 1, 1, 1, 1, 1, 1, 1, 1, 1, 1, 1, 1, 1], False), False)  # 41
sketch3.addGeometry(Part.BSplineCurve([App.Vector(20.570513, -15.4999, 0), App.Vector(20.513859, -15.456751, 0), App.Vector(20.402358, -15.371829, 0), App.Vector(20.227492, -15.261078, 0), App.Vector(20.049757, -15.167148, 0), App.Vector(19.869646, -15.089603, 0), App.Vector(19.686538, -15.029753, 0), App.Vector(19.501225, -14.986915, 0), App.Vector(19.313505, -14.959781, 0), App.Vector(19.18729, -14.95668, 0), App.Vector(19.124099, -14.955128, 0)], [4, 1, 1, 1, 1, 1, 1, 1, 4], [0, 1.08433114, 2.134098231, 3.14842993, 4.143565882, 5.117308249, 6.078377492, 7.037916032, 8], False, 3, [1, 1, 1, 1, 1, 1, 1, 1, 1, 1, 1], False), False)  # 42
sketch3.addGeometry(Part.LineSegment(App.Vector(20.570513, -15.4999, 0), App.Vector(20.570513, -16.794872, 0)), False)  # 43
sketch3.addGeometry(Part.LineSegment(App.Vector(20.570513, -16.794872, 0), App.Vector(19.134615, -16.794872, 0)), False)  # 44
add_polygon(sketch3, [(21.333333, -15.448718), (21.333333, -15), (21.782051, -15), (21.782051, -15.448718)])  # lines 45-48
sketch3.addConstraint([
    Sketcher.Constraint("Block", 17),
    Sketcher.Constraint("Block", 18),
    Sketcher.Constraint("Block", 19),
    Sketcher.Constraint("Block", 20),
    Sketcher.Constraint("Block", 22),
    Sketcher.Constraint("Block", 23),
    Sketcher.Constraint("Block", 24),
    Sketcher.Constraint("Block", 25),
    Sketcher.Constraint("Block", 33),
    Sketcher.Constraint("Block", 34),
    Sketcher.Constraint("Block", 35),
    Sketcher.Constraint("Block", 36),
    Sketcher.Constraint("Block", 37),
    Sketcher.Constraint("Block", 39),
    Sketcher.Constraint("Block", 40),
    Sketcher.Constraint("Block", 41),
    Sketcher.Constraint("Block", 42),
    Sketcher.Constraint("Coincident", 16, 2, 17, 2),
    Sketcher.Constraint("Coincident", 20, 1, 21, 1),
    Sketcher.Constraint("Coincident", 21, 2, 22, 2),
    Sketcher.Constraint("Coincident", 25, 1, 16, 1),
    Sketcher.Constraint("Coincident", 30, 2, 31, 1),
    Sketcher.Constraint("Coincident", 31, 2, 32, 1),
    Sketcher.Constraint("Coincident", 32, 2, 33, 2),
    Sketcher.Constraint("Coincident", 37, 1, 38, 1),
    Sketcher.Constraint("Coincident", 38, 2, 39, 2),
    Sketcher.Constraint("Coincident", 42, 1, 43, 1),
    Sketcher.Constraint("Coincident", 43, 2, 44, 1),
    Sketcher.Constraint("Coincident", 44, 2, 30, 1),
    Sketcher.Constraint("Vertical", 0),
    Sketcher.Constraint("Horizontal", 1),
    Sketcher.Constraint("Vertical", 2),
    Sketcher.Constraint("Horizontal", 3),
    Sketcher.Constraint("Vertical", 4),
    Sketcher.Constraint("Horizontal", 5),
    Sketcher.Constraint("Vertical", 6),
    Sketcher.Constraint("Horizontal", 7),
    Sketcher.Constraint("Vertical", 8),
    Sketcher.Constraint("Horizontal", 9),
    Sketcher.Constraint("Vertical", 10),
    Sketcher.Constraint("Horizontal", 11),
    Sketcher.Constraint("Vertical", 12),
    Sketcher.Constraint("Horizontal", 13),
    Sketcher.Constraint("Vertical", 14),
    Sketcher.Constraint("Horizontal", 15),
    Sketcher.Constraint("Vertical", 26),
    Sketcher.Constraint("Horizontal", 27),
    Sketcher.Constraint("Vertical", 28),
    Sketcher.Constraint("Horizontal", 29),
    Sketcher.Constraint("Vertical", 30),
    Sketcher.Constraint("Horizontal", 31),
    Sketcher.Constraint("Vertical", 32),
    Sketcher.Constraint("Vertical", 43),
    Sketcher.Constraint("Horizontal", 44),
    Sketcher.Constraint("Vertical", 45),
    Sketcher.Constraint("Horizontal", 46),
    Sketcher.Constraint("Vertical", 47),
    Sketcher.Constraint("Horizontal", 48),
    Sketcher.Constraint("Horizontal", 1, 2, 12, 2),
    Sketcher.Constraint("Horizontal", 13, 2, 26, 2),
    Sketcher.Constraint("Horizontal", 15, 2, 28, 2),
    Sketcher.Constraint("Horizontal", 27, 2, 45, 2),
    Sketcher.Constraint("Horizontal", 29, 2, 47, 2),
    Sketcher.Constraint("Vertical", 4, 2, 7, 2),
    Sketcher.Constraint("Equal", 15, 27),
    Sketcher.Constraint("Equal", 29, 46),
    Sketcher.Constraint("Equal", 2, 6),
    Sketcher.Constraint("Equal", 6, 10),
    Sketcher.Constraint("Equal", 48, 12),
    Sketcher.Constraint("Equal", 10, 30),
    Sketcher.Constraint("DistanceY", 0, 1, 0, 2, 3.5),
    Sketcher.Constraint("DistanceY", 0, 2, -1, 1, 15.0),
    Sketcher.Constraint("DistanceX", 28, 2, 43, 2, 5.25),
    Sketcher.Constraint("DistanceX", 9, 1, 9, 2, 1.974359),
    Sketcher.Constraint("DistanceX", 11, 2, 11, 1, 2.467949),
    Sketcher.Constraint("DistanceY", 4, 2, 4, 1, 1.211538),
    Sketcher.Constraint("DistanceY", 32, 1, 32, 2, 0.663261),
    Sketcher.Constraint("DistanceY", 43, 2, 43, 1, 1.294972),
    Sketcher.Constraint("DistanceX", 1, 1, 1, 2, 2.557692),
    Sketcher.Constraint("DistanceX", 5, 1, 5, 2, 1.839744),
    Sketcher.Constraint("DistanceX", 13, 1, 13, 2, 0.448718),
    Sketcher.Constraint("DistanceX", 31, 1, 31, 2, 0.942308),
    Sketcher.Constraint("DistanceX", -1, 1, 1, 2, 7.961538),
    Sketcher.Constraint("DistanceX", -1, 1, 46, 2, 21.782051),
    Sketcher.Constraint("DistanceX", 1, 2, 12, 2, 0.717949),
])
pocket2 = doc.addObject("PartDesign::Pocket", "Pocket001")
body.addObject(pocket2)
pocket2.Profile = sketch3
pocket2.Length = 0.5
pocket2.Reversed = True

doc.recompute()
